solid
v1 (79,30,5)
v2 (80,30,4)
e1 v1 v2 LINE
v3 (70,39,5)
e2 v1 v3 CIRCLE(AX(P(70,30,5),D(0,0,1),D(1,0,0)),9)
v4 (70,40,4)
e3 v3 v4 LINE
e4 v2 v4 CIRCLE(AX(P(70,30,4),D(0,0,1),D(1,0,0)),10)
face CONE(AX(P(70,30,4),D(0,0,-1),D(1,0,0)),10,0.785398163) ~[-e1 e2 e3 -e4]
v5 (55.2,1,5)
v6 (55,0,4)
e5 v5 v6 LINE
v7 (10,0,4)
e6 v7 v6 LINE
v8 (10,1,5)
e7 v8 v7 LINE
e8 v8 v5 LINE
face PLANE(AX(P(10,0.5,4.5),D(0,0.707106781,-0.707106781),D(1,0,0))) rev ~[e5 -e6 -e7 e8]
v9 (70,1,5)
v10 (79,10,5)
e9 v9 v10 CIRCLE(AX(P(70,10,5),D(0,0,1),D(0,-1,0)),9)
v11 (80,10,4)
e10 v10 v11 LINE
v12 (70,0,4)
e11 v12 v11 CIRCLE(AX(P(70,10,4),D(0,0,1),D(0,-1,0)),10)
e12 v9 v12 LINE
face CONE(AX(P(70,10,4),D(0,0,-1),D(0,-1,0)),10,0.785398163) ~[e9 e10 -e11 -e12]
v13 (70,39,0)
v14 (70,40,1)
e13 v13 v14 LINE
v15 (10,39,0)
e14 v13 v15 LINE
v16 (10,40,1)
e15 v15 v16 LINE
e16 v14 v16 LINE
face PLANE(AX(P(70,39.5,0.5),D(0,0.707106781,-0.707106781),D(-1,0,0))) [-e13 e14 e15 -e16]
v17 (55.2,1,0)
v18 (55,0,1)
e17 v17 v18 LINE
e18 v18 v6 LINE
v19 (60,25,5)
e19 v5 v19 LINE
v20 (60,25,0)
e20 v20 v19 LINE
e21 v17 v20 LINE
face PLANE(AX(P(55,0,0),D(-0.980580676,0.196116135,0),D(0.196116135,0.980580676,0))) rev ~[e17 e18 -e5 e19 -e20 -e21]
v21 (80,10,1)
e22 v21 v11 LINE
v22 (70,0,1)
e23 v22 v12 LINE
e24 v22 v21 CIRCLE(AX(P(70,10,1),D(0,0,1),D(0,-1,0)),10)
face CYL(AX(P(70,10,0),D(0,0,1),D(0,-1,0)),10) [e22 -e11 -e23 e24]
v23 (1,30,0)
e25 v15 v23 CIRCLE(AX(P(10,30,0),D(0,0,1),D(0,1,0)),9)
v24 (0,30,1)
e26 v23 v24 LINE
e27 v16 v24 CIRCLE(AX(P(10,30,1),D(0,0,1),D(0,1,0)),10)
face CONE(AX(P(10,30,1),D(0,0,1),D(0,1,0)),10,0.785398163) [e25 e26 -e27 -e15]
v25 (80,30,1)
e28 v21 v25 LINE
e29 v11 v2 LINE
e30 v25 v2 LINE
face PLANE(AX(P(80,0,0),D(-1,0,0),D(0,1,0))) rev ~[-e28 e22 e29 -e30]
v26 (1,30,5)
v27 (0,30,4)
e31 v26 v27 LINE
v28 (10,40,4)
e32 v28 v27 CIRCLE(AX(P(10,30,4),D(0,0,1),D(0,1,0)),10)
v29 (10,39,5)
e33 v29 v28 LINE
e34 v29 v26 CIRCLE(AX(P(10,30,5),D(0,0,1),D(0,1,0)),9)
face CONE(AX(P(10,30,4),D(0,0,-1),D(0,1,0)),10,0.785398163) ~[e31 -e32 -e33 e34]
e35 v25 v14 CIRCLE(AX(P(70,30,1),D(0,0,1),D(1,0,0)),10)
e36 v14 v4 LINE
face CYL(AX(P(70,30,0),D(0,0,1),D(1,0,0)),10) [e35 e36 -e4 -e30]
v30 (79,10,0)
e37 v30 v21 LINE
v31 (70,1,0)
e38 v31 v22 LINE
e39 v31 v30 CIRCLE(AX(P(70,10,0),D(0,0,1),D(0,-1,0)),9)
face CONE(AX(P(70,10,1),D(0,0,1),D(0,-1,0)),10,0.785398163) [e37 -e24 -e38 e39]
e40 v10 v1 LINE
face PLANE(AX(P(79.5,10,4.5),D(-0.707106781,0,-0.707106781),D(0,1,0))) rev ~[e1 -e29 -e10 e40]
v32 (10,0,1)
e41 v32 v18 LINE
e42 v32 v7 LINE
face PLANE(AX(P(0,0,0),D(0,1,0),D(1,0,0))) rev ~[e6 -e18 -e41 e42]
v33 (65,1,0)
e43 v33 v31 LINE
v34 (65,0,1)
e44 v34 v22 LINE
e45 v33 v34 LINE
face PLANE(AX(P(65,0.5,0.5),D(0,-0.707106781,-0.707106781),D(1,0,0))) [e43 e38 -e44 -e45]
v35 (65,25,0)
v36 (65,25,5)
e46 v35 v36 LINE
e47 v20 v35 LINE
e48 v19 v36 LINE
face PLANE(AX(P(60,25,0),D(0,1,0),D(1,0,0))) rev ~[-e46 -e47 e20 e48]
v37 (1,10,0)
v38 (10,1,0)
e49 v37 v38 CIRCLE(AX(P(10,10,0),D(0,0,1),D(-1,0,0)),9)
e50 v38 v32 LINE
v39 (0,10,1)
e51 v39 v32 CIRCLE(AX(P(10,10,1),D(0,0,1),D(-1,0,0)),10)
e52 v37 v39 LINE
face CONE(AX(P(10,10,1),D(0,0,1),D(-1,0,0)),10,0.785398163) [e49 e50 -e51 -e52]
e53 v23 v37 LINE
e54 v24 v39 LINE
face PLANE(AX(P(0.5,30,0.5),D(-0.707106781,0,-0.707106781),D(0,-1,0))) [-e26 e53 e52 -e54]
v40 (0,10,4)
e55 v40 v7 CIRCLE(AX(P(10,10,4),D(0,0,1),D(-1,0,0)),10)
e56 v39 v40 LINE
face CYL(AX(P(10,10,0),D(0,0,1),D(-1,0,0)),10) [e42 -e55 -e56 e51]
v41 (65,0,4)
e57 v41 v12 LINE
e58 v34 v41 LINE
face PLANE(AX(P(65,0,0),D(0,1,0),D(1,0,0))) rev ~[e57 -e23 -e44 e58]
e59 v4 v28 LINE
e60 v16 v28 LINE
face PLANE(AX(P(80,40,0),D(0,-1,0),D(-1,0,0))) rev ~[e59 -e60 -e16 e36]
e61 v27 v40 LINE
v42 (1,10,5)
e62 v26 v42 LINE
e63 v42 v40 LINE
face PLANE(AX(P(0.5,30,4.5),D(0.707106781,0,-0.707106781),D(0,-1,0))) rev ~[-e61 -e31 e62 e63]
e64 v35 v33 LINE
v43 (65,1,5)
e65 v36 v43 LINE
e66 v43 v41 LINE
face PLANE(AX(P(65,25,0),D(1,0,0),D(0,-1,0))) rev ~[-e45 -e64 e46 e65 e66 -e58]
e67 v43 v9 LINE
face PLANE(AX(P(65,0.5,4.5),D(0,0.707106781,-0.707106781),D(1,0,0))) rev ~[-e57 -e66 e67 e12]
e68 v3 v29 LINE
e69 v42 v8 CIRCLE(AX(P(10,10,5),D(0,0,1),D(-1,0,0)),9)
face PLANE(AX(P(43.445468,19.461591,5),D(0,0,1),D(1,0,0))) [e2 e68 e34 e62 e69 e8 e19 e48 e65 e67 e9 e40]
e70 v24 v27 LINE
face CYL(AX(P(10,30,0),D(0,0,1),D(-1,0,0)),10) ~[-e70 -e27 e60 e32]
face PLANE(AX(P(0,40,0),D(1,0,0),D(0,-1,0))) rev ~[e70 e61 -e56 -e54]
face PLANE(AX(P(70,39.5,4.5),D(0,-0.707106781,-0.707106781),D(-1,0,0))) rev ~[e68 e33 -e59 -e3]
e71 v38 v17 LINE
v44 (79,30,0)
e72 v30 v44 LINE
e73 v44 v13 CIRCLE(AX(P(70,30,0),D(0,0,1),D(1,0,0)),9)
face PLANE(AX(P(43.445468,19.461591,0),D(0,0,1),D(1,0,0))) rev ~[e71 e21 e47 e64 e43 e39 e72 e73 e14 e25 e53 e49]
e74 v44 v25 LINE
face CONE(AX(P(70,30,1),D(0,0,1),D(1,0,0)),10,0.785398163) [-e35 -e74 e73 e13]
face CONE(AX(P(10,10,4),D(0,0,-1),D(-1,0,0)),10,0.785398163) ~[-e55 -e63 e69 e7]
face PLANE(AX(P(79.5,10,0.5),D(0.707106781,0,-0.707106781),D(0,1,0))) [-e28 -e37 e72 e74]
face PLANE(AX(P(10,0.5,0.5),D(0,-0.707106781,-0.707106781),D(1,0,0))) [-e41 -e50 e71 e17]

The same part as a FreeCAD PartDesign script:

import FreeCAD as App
import Part
import Sketcher

V = App.Vector
Q = App.Units.Quantity


def edges_at(feature, points):
    """Names of the edges that pass closest to the given points."""
    edges = feature.Shape.Edges
    near = lambda p: min(range(len(edges)), key=lambda i: edges[i].distToShape(Part.Vertex(*p))[0])
    return sorted({f"Edge{near(p) + 1}" for p in points})

doc = App.newDocument("Part")
body = doc.addObject("PartDesign::Body", "Body")

# Sketch on XY plane
sketch1 = doc.addObject("Sketcher::SketchObject", "Sketch")
body.addObject(sketch1)
sketch1.AttachmentSupport = (doc.XY_Plane, [""])
sketch1.MapMode = "FlatFace"
sketch1.addGeometry([
    Part.LineSegment(V(0, 40, 0), V(0, 0, 0)),  # 0
    Part.LineSegment(V(0, 0, 0), V(55, 0, 0)),  # 1
    Part.LineSegment(V(55, 0, 0), V(60, 25, 0)),  # 2
    Part.LineSegment(V(60, 25, 0), V(65, 25, 0)),  # 3
    Part.LineSegment(V(65, 25, 0), V(65, 0, 0)),  # 4
    Part.LineSegment(V(65, 0, 0), V(80, 0, 0)),  # 5
    Part.LineSegment(V(80, 0, 0), V(80, 40, 0)),  # 6
    Part.LineSegment(V(80, 40, 0), V(0, 40, 0)),  # 7
], False)
sketch1.addConstraint([
    Sketcher.Constraint("Coincident", 0, 2, 1, 1),
    Sketcher.Constraint("Coincident", 1, 2, 2, 1),
    Sketcher.Constraint("Coincident", 2, 2, 3, 1),
    Sketcher.Constraint("Coincident", 3, 2, 4, 1),
    Sketcher.Constraint("Coincident", 4, 2, 5, 1),
    Sketcher.Constraint("Coincident", 5, 2, 6, 1),
    Sketcher.Constraint("Coincident", 6, 2, 7, 1),
    Sketcher.Constraint("Coincident", 7, 2, 0, 1),
    Sketcher.Constraint("Vertical", 0),
    Sketcher.Constraint("Horizontal", 1),
    Sketcher.Constraint("Horizontal", 3),
    Sketcher.Constraint("Vertical", 4),
    Sketcher.Constraint("Horizontal", 5),
    Sketcher.Constraint("Vertical", 6),
    Sketcher.Constraint("Horizontal", 7),
    Sketcher.Constraint("Coincident", 0, 2, -1, 1),
    Sketcher.Constraint("PointOnObject", 4, 2, -1),
    Sketcher.Constraint("DistanceX", 1, 1, 1, 2, Q("55 mm")),
    Sketcher.Constraint("DistanceX", 3, 1, 3, 2, Q("5 mm")),
    Sketcher.Constraint("DistanceX", 5, 1, 5, 2, Q("15 mm")),
    Sketcher.Constraint("DistanceX", 7, 2, 7, 1, Q("80 mm")),
    Sketcher.Constraint("DistanceY", 0, 2, 0, 1, Q("40 mm")),
    Sketcher.Constraint("DistanceY", 4, 2, 4, 1, Q("25 mm")),
])
pad1 = doc.addObject("PartDesign::Pad", "Pad")
body.addObject(pad1)
pad1.Profile = sketch1
pad1.Length = 5
doc.recompute()

fillet = doc.addObject("PartDesign::Fillet", "Fillet")
body.addObject(fillet)
fillet.Base = (pad1, edges_at(pad1, [
    (80, 0, 2.5),
    (80, 40, 2.5),
    (0, 40, 2.5),
    (0, 0, 2.5),
]))
fillet.Radius = 10
doc.recompute()

chamfer = doc.addObject("PartDesign::Chamfer", "Chamfer")
body.addObject(chamfer)
chamfer.Base = (fillet, edges_at(fillet, [(77.071, 2.929, 5), (77.071, 2.929, 0)]))
chamfer.Size = 1

doc.recompute()
